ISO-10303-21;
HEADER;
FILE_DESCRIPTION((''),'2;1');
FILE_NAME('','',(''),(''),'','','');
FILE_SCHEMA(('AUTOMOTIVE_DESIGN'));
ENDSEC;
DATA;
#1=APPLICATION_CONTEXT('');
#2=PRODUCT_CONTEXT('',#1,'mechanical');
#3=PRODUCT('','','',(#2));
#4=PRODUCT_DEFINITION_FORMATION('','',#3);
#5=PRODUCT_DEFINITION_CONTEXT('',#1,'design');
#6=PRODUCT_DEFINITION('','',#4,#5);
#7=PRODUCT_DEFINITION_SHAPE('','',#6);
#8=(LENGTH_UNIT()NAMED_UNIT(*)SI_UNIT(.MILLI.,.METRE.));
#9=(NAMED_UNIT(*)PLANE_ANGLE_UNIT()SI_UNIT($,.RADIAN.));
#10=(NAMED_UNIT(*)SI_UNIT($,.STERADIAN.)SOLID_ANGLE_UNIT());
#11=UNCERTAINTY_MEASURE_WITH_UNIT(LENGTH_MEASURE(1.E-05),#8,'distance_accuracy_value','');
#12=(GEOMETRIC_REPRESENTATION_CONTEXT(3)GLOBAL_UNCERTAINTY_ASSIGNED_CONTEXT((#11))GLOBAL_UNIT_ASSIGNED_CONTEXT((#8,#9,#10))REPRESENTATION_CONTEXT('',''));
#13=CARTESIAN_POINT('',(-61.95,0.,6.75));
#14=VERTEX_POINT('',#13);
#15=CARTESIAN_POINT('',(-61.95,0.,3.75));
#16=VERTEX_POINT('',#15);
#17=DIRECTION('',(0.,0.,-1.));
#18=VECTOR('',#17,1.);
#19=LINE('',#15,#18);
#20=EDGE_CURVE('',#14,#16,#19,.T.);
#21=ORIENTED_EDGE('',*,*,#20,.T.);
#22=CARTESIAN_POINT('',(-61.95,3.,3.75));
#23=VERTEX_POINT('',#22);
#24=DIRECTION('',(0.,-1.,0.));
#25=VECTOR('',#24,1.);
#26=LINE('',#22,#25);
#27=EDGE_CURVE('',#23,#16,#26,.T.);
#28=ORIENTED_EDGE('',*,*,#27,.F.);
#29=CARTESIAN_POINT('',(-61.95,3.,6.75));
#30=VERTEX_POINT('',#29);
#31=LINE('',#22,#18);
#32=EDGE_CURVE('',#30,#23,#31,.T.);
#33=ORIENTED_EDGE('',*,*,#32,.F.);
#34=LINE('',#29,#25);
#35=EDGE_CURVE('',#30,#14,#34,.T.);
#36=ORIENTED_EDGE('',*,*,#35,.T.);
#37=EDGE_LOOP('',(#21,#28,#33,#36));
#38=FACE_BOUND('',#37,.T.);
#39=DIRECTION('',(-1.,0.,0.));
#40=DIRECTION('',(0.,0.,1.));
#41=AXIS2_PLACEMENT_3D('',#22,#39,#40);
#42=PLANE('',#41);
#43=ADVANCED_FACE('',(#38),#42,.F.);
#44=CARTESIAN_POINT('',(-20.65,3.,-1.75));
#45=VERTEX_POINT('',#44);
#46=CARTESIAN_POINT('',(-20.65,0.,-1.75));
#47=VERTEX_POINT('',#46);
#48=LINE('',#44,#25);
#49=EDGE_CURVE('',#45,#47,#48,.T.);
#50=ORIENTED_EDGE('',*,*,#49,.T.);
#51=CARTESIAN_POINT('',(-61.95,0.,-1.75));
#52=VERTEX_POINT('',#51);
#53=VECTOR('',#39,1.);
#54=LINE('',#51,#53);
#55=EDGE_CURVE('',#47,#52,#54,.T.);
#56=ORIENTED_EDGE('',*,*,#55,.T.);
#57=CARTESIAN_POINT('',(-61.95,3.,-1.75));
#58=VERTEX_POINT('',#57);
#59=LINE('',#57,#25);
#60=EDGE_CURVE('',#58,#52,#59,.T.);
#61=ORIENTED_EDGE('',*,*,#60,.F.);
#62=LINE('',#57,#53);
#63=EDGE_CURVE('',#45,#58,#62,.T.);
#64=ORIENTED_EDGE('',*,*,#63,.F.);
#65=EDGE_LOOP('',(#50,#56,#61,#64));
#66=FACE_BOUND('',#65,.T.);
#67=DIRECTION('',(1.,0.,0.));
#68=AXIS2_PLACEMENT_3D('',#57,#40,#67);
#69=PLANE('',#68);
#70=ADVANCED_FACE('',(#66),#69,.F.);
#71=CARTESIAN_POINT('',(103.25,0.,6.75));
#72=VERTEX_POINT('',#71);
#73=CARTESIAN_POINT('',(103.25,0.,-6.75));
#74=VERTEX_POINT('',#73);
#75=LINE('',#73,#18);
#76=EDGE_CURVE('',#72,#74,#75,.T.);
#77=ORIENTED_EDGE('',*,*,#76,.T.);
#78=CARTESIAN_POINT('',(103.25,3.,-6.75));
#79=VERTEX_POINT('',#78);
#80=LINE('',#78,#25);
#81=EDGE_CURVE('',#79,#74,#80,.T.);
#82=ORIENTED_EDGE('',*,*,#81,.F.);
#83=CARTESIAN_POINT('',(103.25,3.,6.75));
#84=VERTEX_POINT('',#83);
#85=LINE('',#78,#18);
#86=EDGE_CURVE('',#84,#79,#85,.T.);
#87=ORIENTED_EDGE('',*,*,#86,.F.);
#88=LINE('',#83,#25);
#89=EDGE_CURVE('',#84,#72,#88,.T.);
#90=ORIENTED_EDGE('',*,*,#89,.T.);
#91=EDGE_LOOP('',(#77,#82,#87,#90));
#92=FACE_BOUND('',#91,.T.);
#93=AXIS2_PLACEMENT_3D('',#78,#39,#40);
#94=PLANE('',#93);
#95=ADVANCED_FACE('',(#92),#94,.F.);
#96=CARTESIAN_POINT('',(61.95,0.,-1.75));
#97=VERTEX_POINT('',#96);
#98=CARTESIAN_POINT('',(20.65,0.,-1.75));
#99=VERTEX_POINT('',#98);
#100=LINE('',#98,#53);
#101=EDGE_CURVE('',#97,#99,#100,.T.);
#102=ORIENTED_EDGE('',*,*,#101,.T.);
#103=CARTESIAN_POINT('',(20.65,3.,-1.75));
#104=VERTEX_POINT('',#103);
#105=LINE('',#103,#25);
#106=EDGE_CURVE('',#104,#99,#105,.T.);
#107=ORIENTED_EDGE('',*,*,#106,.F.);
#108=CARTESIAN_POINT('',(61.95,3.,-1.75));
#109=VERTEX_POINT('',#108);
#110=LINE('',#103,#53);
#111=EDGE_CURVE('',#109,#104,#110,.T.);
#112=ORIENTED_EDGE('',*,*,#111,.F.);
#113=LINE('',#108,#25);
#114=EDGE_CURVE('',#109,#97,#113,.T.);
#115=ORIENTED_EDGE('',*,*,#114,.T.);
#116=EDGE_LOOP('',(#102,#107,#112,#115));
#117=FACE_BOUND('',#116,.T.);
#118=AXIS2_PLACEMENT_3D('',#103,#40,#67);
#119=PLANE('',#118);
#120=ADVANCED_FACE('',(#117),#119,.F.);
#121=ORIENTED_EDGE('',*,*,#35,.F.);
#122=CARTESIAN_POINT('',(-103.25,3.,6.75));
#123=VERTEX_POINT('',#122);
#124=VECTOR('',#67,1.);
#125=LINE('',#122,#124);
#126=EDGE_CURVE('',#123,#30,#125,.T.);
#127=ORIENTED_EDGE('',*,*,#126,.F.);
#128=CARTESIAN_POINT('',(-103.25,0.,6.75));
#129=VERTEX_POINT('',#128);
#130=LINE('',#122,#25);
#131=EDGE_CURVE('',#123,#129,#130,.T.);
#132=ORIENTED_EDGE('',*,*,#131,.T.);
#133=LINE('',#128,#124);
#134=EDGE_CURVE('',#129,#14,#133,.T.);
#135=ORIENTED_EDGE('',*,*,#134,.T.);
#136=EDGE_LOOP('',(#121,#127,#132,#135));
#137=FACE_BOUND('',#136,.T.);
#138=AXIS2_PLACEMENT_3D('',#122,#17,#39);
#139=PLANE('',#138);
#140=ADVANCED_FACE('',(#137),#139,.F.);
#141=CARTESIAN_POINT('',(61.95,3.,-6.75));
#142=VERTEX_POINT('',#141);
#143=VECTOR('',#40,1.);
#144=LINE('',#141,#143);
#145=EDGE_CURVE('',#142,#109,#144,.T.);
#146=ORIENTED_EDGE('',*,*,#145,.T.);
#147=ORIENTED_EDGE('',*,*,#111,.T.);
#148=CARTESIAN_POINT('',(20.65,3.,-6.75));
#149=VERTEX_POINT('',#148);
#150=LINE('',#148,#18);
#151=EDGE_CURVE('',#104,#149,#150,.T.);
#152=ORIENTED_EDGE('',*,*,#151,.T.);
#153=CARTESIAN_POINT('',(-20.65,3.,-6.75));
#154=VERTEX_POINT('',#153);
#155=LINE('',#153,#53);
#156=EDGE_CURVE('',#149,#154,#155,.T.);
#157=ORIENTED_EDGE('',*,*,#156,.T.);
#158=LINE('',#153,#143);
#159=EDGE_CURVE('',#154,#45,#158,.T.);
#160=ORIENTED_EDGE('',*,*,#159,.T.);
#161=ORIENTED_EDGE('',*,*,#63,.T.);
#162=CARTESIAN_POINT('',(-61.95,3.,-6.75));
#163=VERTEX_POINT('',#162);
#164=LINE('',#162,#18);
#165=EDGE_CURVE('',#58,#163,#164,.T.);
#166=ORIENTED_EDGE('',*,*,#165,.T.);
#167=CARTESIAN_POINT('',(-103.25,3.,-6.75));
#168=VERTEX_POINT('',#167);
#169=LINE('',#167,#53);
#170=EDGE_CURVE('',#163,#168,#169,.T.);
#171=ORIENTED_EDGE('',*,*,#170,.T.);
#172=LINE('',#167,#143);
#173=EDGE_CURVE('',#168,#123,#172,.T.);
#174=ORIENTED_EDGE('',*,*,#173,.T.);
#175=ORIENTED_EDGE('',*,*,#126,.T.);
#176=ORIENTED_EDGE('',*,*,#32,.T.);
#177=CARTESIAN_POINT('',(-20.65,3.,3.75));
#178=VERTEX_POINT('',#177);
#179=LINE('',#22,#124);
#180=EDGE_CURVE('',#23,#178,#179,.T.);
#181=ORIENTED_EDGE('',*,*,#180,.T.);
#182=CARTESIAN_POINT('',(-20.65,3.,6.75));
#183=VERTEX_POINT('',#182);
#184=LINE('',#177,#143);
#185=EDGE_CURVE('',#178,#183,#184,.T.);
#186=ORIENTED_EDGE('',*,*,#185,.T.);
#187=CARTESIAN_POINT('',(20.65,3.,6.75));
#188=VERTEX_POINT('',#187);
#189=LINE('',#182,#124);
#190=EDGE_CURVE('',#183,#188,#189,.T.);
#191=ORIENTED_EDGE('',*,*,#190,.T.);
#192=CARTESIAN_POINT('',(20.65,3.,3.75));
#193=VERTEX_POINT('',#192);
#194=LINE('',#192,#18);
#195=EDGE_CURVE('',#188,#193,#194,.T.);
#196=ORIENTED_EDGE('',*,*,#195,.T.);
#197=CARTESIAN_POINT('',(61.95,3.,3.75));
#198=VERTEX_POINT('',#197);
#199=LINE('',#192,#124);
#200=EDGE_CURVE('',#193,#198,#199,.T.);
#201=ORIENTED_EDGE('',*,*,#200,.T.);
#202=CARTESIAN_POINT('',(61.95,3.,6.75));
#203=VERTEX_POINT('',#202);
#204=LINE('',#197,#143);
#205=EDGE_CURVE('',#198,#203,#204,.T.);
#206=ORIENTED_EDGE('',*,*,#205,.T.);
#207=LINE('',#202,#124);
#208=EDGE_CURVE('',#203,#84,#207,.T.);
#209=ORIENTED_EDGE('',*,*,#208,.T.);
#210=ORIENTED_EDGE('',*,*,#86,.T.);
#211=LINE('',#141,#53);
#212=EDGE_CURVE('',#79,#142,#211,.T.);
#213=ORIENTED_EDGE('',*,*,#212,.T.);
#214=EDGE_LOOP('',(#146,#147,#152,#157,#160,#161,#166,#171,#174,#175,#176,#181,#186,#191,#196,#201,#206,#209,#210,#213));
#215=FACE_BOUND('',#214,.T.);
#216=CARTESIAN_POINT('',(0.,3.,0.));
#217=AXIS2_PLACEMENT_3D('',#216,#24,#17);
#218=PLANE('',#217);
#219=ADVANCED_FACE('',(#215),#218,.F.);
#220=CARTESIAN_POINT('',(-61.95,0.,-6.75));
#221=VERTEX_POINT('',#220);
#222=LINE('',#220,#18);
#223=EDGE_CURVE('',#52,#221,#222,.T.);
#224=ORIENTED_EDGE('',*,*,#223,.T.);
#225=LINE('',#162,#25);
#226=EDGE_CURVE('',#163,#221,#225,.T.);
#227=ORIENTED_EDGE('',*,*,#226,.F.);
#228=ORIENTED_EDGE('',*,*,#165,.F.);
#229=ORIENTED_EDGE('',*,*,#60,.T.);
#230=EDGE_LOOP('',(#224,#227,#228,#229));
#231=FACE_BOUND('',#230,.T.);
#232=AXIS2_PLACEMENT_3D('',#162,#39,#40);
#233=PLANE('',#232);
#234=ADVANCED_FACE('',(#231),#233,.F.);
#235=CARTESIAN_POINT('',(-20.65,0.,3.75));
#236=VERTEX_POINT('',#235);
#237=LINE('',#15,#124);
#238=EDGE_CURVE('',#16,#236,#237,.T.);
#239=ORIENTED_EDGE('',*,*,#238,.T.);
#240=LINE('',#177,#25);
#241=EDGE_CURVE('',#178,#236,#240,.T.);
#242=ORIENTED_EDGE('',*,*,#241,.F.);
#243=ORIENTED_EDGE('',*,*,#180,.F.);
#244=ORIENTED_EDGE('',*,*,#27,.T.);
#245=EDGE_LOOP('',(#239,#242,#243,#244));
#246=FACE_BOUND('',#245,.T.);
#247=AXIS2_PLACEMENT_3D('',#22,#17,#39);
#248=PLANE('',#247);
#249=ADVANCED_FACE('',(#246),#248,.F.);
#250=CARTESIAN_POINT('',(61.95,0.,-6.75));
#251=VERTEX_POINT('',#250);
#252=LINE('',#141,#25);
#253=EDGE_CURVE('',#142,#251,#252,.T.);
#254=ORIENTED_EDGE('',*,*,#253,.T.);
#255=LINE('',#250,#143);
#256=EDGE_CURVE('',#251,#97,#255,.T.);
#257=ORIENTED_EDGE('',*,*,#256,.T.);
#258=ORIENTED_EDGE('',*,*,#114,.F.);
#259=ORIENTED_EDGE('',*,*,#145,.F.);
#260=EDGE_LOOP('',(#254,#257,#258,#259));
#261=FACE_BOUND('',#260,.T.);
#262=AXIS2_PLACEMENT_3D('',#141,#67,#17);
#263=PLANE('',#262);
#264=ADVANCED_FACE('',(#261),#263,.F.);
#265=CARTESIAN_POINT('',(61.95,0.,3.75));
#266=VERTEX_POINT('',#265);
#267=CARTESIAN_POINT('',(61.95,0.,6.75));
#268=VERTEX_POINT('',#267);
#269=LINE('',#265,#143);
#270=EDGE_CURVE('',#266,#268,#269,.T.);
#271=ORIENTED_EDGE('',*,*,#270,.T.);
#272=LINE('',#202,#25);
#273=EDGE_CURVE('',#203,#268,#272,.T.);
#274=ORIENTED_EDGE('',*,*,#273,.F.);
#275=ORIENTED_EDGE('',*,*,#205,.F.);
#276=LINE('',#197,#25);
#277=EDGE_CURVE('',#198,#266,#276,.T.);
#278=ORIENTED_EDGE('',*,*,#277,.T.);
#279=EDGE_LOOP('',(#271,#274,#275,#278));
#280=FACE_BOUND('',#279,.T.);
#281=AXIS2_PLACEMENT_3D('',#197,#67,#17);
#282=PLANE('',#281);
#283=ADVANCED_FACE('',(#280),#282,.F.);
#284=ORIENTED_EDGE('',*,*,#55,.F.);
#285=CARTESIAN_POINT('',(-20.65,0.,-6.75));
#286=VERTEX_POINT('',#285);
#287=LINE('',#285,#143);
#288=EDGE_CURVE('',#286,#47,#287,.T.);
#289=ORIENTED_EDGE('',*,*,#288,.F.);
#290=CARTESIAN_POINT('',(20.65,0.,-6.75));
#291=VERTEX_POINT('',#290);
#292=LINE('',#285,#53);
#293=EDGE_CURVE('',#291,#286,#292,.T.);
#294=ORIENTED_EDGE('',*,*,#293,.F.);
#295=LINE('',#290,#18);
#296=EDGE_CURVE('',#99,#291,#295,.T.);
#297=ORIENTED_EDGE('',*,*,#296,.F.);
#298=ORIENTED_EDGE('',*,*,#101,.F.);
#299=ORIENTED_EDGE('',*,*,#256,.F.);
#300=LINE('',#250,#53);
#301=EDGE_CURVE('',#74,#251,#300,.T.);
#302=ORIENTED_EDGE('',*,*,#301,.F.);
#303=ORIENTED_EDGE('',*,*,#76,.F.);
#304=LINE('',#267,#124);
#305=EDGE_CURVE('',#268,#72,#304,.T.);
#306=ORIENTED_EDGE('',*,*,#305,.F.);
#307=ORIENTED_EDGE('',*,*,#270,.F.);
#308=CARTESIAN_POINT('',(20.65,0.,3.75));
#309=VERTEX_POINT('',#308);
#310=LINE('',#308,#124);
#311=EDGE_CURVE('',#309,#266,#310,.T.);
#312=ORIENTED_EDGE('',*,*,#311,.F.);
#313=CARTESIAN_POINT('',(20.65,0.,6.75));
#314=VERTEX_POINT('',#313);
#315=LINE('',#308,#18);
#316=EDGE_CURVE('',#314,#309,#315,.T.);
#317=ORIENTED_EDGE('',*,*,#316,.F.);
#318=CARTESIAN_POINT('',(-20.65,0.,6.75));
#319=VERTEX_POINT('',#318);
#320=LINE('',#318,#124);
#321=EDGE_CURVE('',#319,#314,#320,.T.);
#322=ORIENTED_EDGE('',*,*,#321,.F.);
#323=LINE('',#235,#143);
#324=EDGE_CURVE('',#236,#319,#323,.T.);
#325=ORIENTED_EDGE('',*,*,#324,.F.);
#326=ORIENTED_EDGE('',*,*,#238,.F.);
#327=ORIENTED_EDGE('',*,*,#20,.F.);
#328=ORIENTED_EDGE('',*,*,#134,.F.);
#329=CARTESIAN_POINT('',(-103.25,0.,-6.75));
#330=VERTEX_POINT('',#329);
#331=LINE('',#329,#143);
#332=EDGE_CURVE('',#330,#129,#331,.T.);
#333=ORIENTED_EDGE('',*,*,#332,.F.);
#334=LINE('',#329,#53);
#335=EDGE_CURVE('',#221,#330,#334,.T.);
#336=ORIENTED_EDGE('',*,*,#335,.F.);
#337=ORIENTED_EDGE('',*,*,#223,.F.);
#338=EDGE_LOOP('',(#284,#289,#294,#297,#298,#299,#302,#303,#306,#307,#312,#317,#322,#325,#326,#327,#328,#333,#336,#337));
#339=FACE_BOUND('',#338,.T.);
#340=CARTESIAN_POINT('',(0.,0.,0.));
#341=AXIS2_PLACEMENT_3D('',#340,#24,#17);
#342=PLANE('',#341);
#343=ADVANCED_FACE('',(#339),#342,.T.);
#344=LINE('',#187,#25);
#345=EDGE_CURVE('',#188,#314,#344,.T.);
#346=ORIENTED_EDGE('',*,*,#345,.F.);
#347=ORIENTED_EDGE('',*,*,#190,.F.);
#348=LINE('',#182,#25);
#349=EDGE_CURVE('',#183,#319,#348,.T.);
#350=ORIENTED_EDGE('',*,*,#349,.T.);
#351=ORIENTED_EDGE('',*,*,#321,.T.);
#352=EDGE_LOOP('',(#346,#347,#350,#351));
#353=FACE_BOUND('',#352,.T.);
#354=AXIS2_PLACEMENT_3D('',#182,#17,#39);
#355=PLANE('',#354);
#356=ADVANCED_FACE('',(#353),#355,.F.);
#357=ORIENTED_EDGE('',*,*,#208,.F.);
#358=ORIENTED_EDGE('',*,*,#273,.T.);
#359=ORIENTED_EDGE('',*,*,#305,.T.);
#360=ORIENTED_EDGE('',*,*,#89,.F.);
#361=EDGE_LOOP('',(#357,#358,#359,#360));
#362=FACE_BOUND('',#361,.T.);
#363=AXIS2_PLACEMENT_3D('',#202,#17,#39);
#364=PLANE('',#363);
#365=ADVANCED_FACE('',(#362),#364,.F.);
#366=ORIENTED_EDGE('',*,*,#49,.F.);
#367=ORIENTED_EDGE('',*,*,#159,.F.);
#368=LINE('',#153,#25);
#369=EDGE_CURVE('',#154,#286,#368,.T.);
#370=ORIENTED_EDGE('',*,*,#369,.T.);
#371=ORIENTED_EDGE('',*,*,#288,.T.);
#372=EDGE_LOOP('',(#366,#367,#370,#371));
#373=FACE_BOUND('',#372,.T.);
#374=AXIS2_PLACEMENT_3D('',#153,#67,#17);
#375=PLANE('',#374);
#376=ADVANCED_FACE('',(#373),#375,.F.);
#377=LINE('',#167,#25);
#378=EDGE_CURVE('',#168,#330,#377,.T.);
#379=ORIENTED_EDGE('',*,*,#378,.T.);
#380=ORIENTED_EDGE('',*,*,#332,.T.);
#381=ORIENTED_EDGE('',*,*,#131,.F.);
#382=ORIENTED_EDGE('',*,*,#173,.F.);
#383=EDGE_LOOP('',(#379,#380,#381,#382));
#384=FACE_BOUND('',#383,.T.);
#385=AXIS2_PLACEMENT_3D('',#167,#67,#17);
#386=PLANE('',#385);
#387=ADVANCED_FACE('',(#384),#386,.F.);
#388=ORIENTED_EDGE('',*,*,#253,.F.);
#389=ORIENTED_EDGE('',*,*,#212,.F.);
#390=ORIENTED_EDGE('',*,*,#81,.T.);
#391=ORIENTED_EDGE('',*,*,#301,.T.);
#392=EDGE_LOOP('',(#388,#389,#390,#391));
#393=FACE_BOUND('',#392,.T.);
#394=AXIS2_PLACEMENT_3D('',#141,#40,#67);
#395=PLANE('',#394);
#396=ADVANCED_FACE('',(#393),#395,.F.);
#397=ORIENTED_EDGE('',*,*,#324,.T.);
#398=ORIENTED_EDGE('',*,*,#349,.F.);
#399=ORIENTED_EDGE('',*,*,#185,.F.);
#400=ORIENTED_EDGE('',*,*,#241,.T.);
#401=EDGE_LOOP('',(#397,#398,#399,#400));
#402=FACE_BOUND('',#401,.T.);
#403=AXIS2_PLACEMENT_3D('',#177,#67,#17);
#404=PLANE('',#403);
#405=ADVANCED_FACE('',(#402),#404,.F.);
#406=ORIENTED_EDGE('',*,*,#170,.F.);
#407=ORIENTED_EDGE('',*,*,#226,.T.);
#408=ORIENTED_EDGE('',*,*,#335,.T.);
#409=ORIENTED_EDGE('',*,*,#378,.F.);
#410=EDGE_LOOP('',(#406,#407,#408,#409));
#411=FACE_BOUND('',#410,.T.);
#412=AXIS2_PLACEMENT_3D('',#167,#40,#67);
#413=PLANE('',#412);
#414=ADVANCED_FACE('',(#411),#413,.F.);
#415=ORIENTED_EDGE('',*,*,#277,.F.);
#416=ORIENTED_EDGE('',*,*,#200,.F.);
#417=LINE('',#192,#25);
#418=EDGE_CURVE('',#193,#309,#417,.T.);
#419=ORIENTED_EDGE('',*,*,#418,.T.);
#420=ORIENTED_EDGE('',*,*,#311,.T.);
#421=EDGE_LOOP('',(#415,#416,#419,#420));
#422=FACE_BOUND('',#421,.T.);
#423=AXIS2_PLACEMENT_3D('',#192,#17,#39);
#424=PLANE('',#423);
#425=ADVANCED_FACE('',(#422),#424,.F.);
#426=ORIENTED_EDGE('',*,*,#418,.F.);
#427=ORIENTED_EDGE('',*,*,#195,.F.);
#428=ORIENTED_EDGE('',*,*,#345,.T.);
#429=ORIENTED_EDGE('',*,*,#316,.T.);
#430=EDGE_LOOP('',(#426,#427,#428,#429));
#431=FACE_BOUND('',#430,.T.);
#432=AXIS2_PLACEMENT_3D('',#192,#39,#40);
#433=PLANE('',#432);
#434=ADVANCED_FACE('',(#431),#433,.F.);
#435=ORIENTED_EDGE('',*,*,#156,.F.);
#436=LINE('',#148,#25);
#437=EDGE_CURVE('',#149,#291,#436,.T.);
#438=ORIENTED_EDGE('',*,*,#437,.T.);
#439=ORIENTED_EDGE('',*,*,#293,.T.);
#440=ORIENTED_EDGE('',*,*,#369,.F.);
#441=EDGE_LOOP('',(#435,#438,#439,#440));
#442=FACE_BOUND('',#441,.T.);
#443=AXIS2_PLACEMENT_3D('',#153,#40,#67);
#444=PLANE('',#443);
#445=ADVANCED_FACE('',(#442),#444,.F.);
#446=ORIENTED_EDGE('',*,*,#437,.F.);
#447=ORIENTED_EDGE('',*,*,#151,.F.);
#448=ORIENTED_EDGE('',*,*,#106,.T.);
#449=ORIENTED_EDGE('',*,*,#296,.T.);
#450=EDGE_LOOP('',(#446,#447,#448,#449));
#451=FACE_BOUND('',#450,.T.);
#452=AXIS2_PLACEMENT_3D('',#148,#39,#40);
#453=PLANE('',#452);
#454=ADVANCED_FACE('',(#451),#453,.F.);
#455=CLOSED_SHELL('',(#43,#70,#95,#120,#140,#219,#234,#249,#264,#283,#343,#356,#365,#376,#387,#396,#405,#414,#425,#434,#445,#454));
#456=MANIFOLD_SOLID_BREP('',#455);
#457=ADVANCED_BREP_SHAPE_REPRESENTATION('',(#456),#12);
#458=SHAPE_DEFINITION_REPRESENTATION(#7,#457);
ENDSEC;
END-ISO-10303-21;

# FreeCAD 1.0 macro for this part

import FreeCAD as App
import Part
import Sketcher
from FreeCAD import Vector
Q = App.Units.Quantity


def add_polygon(sketch, points):
    """Adds a closed chain of lines whose ends are joined by coincident constraints."""
    first, n = sketch.GeometryCount, len(points)
    for a, b in zip(points, points[1:] + points[:1]):
        sketch.addGeometry(Part.LineSegment(App.Vector(*a, 0), App.Vector(*b, 0)), False)
    for i in range(n):
        sketch.addConstraint(Sketcher.Constraint("Coincident", first + i, 2, first + (i + 1) % n, 1))

doc = App.newDocument("Part")
body = doc.addObject("PartDesign::Body", "Body")

# Sketch on XZ plane
sketch1 = body.newObject("Sketcher::SketchObject", "Sketch")
sketch1.AttachmentSupport = (doc.getObject("XZ_Plane"), [""])
sketch1.MapMode = "FlatFace"
add_polygon(sketch1, [(-61.95, -6.75), (-103.25, -6.75), (-103.25, 6.75), (-61.95, 6.75), (-61.95, 3.75), (-20.65, 3.75), (-20.65, 6.75), (20.65, 6.75), (20.65, 3.75), (61.95, 3.75), (61.95, 6.75), (103.25, 6.75), (103.25, -6.75), (61.95, -6.75), (61.95, -1.75), (20.65, -1.75), (20.65, -6.75), (-20.65, -6.75), (-20.65, -1.75), (-61.95, -1.75)])  # lines 0-19
sketch1.addConstraint([
    Sketcher.Constraint("Horizontal", 0),
    Sketcher.Constraint("Vertical", 1),
    Sketcher.Constraint("Horizontal", 2),
    Sketcher.Constraint("Vertical", 3),
    Sketcher.Constraint("Horizontal", 4),
    Sketcher.Constraint("Vertical", 5),
    Sketcher.Constraint("Horizontal", 6),
    Sketcher.Constraint("Vertical", 7),
    Sketcher.Constraint("Horizontal", 8),
    Sketcher.Constraint("Vertical", 9),
    Sketcher.Constraint("Horizontal", 10),
    Sketcher.Constraint("Vertical", 11),
    Sketcher.Constraint("Horizontal", 12),
    Sketcher.Constraint("Vertical", 13),
    Sketcher.Constraint("Horizontal", 14),
    Sketcher.Constraint("Vertical", 15),
    Sketcher.Constraint("Horizontal", 16),
    Sketcher.Constraint("Vertical", 17),
    Sketcher.Constraint("Horizontal", 18),
    Sketcher.Constraint("Vertical", 19),
    Sketcher.Constraint("Symmetric", 0, 2, 10, 2, -1, 1),
    Sketcher.Constraint("Symmetric", 2, 2, 12, 2, -1, 1),
    Sketcher.Constraint("Symmetric", 5, 2, 15, 2, -1, 1),
    Sketcher.Constraint("Symmetric", 4, 2, 7, 2, -2),
    Sketcher.Constraint("Symmetric", 2, 2, 9, 2, -2),
    Sketcher.Constraint("Symmetric", 14, 2, 17, 2, -2),
    Sketcher.Constraint("Horizontal", 2, 2, 5, 2),
    Sketcher.Constraint("Vertical", 3, 2, 18, 2),
    Sketcher.Constraint("Equal", 2, 4),
    Sketcher.Constraint("Equal", 4, 6),
    Sketcher.Constraint("DistanceY", 3, 2, 3, 1, Q("3 mm")),
    Sketcher.Constraint("DistanceY", 13, 1, 13, 2, Q("5 mm")),
    Sketcher.Constraint("DistanceX", 0, 2, 0, 1, Q("41.3 mm")),
    Sketcher.Constraint("DistanceY", 1, 1, 1, 2, Q("13.5 mm")),
])
pad1 = body.newObject("PartDesign::Pad", "Pad")
pad1.Profile = sketch1
pad1.Length = 3
pad1.Reversed = True

doc.recompute()
